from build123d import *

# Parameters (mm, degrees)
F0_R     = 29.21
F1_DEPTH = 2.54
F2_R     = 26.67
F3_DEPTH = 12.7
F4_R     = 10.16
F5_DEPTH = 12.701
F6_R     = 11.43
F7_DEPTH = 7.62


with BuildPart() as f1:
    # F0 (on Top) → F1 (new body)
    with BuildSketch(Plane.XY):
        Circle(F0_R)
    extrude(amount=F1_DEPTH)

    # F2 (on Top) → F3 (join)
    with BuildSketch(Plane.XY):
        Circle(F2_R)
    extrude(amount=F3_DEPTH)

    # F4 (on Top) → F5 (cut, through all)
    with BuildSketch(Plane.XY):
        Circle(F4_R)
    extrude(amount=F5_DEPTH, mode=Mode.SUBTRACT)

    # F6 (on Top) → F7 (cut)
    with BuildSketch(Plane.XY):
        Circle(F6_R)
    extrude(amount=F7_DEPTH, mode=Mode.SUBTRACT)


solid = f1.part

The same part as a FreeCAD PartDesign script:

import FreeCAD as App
import Part
import Sketcher

V = App.Vector
Q = App.Units.Quantity

doc = App.newDocument("Part")
params = doc.addObject("Spreadsheet::Sheet", "Params")
for row, (alias, value) in enumerate([
    ("sketch1_diameter", "2.3 in"),
    ("pad1_length", "0.1 in"),
    ("sketch2_diameter", "2.1 in"),
    ("pad2_length", "0.5 in"),
    ("sketch3_diameter", "0.8 in"),
    ("sketch4_diameter", "0.9 in"),
    ("pocket2_length", "0.3 in"),
], start=1):
    params.set(f"A{row}", alias)
    params.set(f"B{row}", "=" + value)
    params.setAlias(f"B{row}", alias)

body = doc.addObject("PartDesign::Body", "Body")

sketch1 = body.newObject("Sketcher::SketchObject", "Sketch")
sketch1.AttachmentSupport = (doc.getObject("XY_Plane"), [""])
sketch1.MapMode = "FlatFace"
sketch1.addGeometry(Part.Circle(V(0, 0, 0), V(0, 0, 1), 29), False)
sketch1.addConstraint([
    Sketcher.Constraint("Coincident", 0, 3, -1, 1),
    Sketcher.Constraint("Diameter", 0, Q("2.3 in")),
])
sketch1.setExpression("Constraints[1]", "Params.sketch1_diameter")
pad1 = body.newObject("PartDesign::Pad", "Pad")
pad1.Profile = sketch1
pad1.setExpression("Length", "Params.pad1_length")

sketch2 = body.newObject("Sketcher::SketchObject", "Sketch001")
sketch2.AttachmentSupport = (doc.getObject("XY_Plane"), [""])
sketch2.MapMode = "FlatFace"
sketch2.addGeometry(Part.Circle(V(0, 0, 0), V(0, 0, 1), 27), False)
sketch2.addConstraint([
    Sketcher.Constraint("Coincident", 0, 3, -1, 1),
    Sketcher.Constraint("Diameter", 0, Q("2.1 in")),
])
sketch2.setExpression("Constraints[1]", "Params.sketch2_diameter")
pad2 = body.newObject("PartDesign::Pad", "Pad001")
pad2.Profile = sketch2
pad2.setExpression("Length", "Params.pad2_length")

sketch3 = body.newObject("Sketcher::SketchObject", "Sketch002")
sketch3.AttachmentSupport = (doc.getObject("XY_Plane"), [""])
sketch3.MapMode = "FlatFace"
sketch3.addGeometry(Part.Circle(V(0, 0, 0), V(0, 0, 1), 10), False)
sketch3.addConstraint([
    Sketcher.Constraint("Coincident", 0, 3, -1, 1),
    Sketcher.Constraint("Diameter", 0, Q("0.8 in")),
])
sketch3.setExpression("Constraints[1]", "Params.sketch3_diameter")
pocket1 = body.newObject("PartDesign::Pocket", "Pocket")
pocket1.Profile = sketch3
pocket1.Type = "ThroughAll"
pocket1.Reversed = True

sketch4 = body.newObject("Sketcher::SketchObject", "Sketch003")
sketch4.AttachmentSupport = (doc.getObject("XY_Plane"), [""])
sketch4.MapMode = "FlatFace"
sketch4.addGeometry(Part.Circle(V(0, 0, 0), V(0, 0, 1), 11), False)
sketch4.addConstraint([
    Sketcher.Constraint("Coincident", 0, 3, -1, 1),
    Sketcher.Constraint("Diameter", 0, Q("0.9 in")),
])
sketch4.setExpression("Constraints[1]", "Params.sketch4_diameter")
pocket2 = body.newObject("PartDesign::Pocket", "Pocket001")
pocket2.Profile = sketch4
pocket2.setExpression("Length", "Params.pocket2_length")
pocket2.Reversed = True

doc.recompute()
